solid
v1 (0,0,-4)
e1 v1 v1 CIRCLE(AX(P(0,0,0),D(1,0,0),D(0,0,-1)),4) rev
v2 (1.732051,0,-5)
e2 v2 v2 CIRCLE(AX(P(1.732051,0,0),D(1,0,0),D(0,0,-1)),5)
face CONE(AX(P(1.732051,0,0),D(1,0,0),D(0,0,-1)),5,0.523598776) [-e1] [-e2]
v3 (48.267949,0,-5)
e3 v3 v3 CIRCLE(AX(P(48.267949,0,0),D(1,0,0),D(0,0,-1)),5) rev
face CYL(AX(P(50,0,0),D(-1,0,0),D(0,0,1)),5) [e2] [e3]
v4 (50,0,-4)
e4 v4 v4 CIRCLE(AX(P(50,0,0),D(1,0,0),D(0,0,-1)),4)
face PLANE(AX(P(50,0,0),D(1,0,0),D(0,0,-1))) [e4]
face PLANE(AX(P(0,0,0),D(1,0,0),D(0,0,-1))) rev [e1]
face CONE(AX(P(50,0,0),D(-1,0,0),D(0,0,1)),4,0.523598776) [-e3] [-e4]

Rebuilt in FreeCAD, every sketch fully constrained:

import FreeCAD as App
import Part
import Sketcher
Q = App.Units.Quantity


def edges_at(feature, points):
    """Names of the edges that pass closest to the given points."""
    edges = feature.Shape.Edges
    near = lambda p: min(range(len(edges)), key=lambda i: edges[i].distToShape(Part.Vertex(*p))[0])
    return sorted({f"Edge{near(p) + 1}" for p in points})

doc = App.newDocument("Part")
body = doc.addObject("PartDesign::Body", "Body")

sketch1 = doc.addObject("Sketcher::SketchObject", "Sketch")
body.addObject(sketch1)
sketch1.AttachmentSupport = (doc.YZ_Plane, [""])
sketch1.MapMode = "FlatFace"
sketch1.addGeometry(Part.Circle(App.Vector(0, 0, 0), App.Vector(0, 0, 1), 5), False)
sketch1.addConstraint([
    Sketcher.Constraint("Coincident", 0, 3, -1, 1),
    Sketcher.Constraint("Diameter", 0, Q("10 mm")),
])
pad1 = doc.addObject("PartDesign::Pad", "Pad")
body.addObject(pad1)
pad1.Profile = sketch1
pad1.Length = 50
doc.recompute()

chamfer = doc.addObject("PartDesign::Chamfer", "Chamfer")
body.addObject(chamfer)
chamfer.Base = (pad1, edges_at(pad1, [(0, 0, 5)]))
chamfer.ChamferType = "Two distances"
chamfer.Size = 1
chamfer.Size2 = 1.732051
chamfer.FlipDirection = True
doc.recompute()

chamfer2 = doc.addObject("PartDesign::Chamfer", "Chamfer001")
body.addObject(chamfer2)
chamfer2.Base = (chamfer, edges_at(chamfer, [(50, 0, 5)]))
chamfer2.ChamferType = "Two distances"
chamfer2.Size = 1
chamfer2.Size2 = 1.732051
chamfer2.FlipDirection = True

doc.recompute()
